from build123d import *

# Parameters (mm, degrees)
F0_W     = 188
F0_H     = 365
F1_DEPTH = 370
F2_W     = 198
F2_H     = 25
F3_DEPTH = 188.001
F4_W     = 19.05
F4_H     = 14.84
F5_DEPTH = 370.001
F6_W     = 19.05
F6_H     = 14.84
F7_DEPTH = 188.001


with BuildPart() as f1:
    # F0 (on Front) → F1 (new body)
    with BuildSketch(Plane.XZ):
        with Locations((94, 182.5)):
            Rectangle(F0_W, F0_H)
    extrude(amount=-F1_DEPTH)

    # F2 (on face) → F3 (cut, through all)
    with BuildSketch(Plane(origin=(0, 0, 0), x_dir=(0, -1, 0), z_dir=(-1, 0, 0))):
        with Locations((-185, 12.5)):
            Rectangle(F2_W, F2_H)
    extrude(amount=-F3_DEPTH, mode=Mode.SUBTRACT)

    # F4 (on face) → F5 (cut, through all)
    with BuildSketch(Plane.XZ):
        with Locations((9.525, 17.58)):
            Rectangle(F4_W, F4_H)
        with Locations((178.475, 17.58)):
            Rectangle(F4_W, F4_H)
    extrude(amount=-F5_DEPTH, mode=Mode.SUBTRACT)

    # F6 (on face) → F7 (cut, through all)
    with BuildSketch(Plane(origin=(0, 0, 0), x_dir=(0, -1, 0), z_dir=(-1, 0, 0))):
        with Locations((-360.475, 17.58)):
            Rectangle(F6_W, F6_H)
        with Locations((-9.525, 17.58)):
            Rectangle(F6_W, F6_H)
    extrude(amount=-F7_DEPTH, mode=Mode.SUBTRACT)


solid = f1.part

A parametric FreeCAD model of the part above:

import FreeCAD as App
import Part
import Sketcher
Q = App.Units.Quantity


def add_polygon(sketch, points):
    """Adds a closed chain of lines whose ends are joined by coincident constraints."""
    first, n = sketch.GeometryCount, len(points)
    for a, b in zip(points, points[1:] + points[:1]):
        sketch.addGeometry(Part.LineSegment(App.Vector(*a, 0), App.Vector(*b, 0)), False)
    for i in range(n):
        sketch.addConstraint(Sketcher.Constraint("Coincident", first + i, 2, first + (i + 1) % n, 1))

doc = App.newDocument("Part")
body = doc.addObject("PartDesign::Body", "Body")

sketch1 = body.newObject("Sketcher::SketchObject", "Sketch")
sketch1.AttachmentSupport = (doc.getObject("XZ_Plane"), [""])
sketch1.MapMode = "FlatFace"
add_polygon(sketch1, [(0, 365), (0, 0), (188, 0), (188, 365)])
sketch1.addConstraint(Sketcher.Constraint("Vertical", 0))
sketch1.addConstraint(Sketcher.Constraint("Horizontal", 1))
sketch1.addConstraint(Sketcher.Constraint("Vertical", 2))
sketch1.addConstraint(Sketcher.Constraint("Horizontal", 3))
sketch1.addConstraint(Sketcher.Constraint("Coincident", 0, 2, -1, 1))
sketch1.addConstraint(Sketcher.Constraint("DistanceX", 1, 1, 1, 2, Q("188 mm")))
sketch1.addConstraint(Sketcher.Constraint("DistanceY", 0, 2, 0, 1, Q("365 mm")))
pad1 = body.newObject("PartDesign::Pad", "Pad")
pad1.Profile = sketch1
pad1.Length = 370
pad1.Reversed = True

sketch2 = body.newObject("Sketcher::SketchObject", "Sketch001")
sketch2.AttachmentSupport = (doc.getObject("YZ_Plane"), [""])
sketch2.MapMode = "FlatFace"
add_polygon(sketch2, [(284, 25), (284, 0), (86, 0), (86, 25)])
sketch2.addConstraint(Sketcher.Constraint("Vertical", 0))
sketch2.addConstraint(Sketcher.Constraint("Horizontal", 1))
sketch2.addConstraint(Sketcher.Constraint("Vertical", 2))
sketch2.addConstraint(Sketcher.Constraint("Horizontal", 3))
sketch2.addConstraint(Sketcher.Constraint("PointOnObject", 0, 2, -1))
sketch2.addConstraint(Sketcher.Constraint("DistanceX", 1, 2, 1, 1, Q("198 mm")))
sketch2.addConstraint(Sketcher.Constraint("DistanceY", 0, 2, 0, 1, Q("25 mm")))
sketch2.addConstraint(Sketcher.Constraint("DistanceX", -1, 1, 0, 2, Q("284 mm")))
pocket1 = body.newObject("PartDesign::Pocket", "Pocket")
pocket1.Profile = sketch2
pocket1.Type = "ThroughAll"
pocket1.Reversed = True

sketch3 = body.newObject("Sketcher::SketchObject", "Sketch002")
sketch3.AttachmentSupport = (doc.getObject("XZ_Plane"), [""])
sketch3.MapMode = "FlatFace"
add_polygon(sketch3, [(0, 25), (0, 10), (19, 10), (19, 25)])
add_polygon(sketch3, [(169, 25), (169, 10), (188, 10), (188, 25)])
sketch3.addConstraint(Sketcher.Constraint("Vertical", 0))
sketch3.addConstraint(Sketcher.Constraint("Horizontal", 1))
sketch3.addConstraint(Sketcher.Constraint("Vertical", 2))
sketch3.addConstraint(Sketcher.Constraint("Horizontal", 3))
sketch3.addConstraint(Sketcher.Constraint("Vertical", 4))
sketch3.addConstraint(Sketcher.Constraint("Horizontal", 5))
sketch3.addConstraint(Sketcher.Constraint("Vertical", 6))
sketch3.addConstraint(Sketcher.Constraint("Horizontal", 7))
sketch3.addConstraint(Sketcher.Constraint("PointOnObject", 0, 2, -2))
sketch3.addConstraint(Sketcher.Constraint("Horizontal", 1, 2, 4, 2))
sketch3.addConstraint(Sketcher.Constraint("Horizontal", 3, 2, 6, 2))
sketch3.addConstraint(Sketcher.Constraint("Equal", 3, 5))
sketch3.addConstraint(Sketcher.Constraint("DistanceY", -1, 1, 2, 2, Q("25 mm")))
sketch3.addConstraint(Sketcher.Constraint("DistanceX", -1, 1, 5, 2, Q("188 mm")))
sketch3.addConstraint(Sketcher.Constraint("DistanceX", 1, 1, 1, 2, Q("19.05 mm")))
sketch3.addConstraint(Sketcher.Constraint("DistanceY", 0, 2, 0, 1, Q("14.84 mm")))
pocket2 = body.newObject("PartDesign::Pocket", "Pocket001")
pocket2.Profile = sketch3
pocket2.Type = "ThroughAll"

sketch4 = body.newObject("Sketcher::SketchObject", "Sketch003")
sketch4.AttachmentSupport = (doc.getObject("YZ_Plane"), [""])
sketch4.MapMode = "FlatFace"
add_polygon(sketch4, [(370, 25), (370, 10), (351, 10), (351, 25)])
add_polygon(sketch4, [(19, 25), (19, 10), (0, 10), (0, 25)])
sketch4.addConstraint(Sketcher.Constraint("Vertical", 0))
sketch4.addConstraint(Sketcher.Constraint("Horizontal", 1))
sketch4.addConstraint(Sketcher.Constraint("Vertical", 2))
sketch4.addConstraint(Sketcher.Constraint("Horizontal", 3))
sketch4.addConstraint(Sketcher.Constraint("Vertical", 4))
sketch4.addConstraint(Sketcher.Constraint("Horizontal", 5))
sketch4.addConstraint(Sketcher.Constraint("Vertical", 6))
sketch4.addConstraint(Sketcher.Constraint("Horizontal", 7))
sketch4.addConstraint(Sketcher.Constraint("PointOnObject", 5, 2, -2))
sketch4.addConstraint(Sketcher.Constraint("Horizontal", 1, 2, 4, 2))
sketch4.addConstraint(Sketcher.Constraint("Horizontal", 3, 2, 6, 2))
sketch4.addConstraint(Sketcher.Constraint("Equal", 3, 5))
sketch4.addConstraint(Sketcher.Constraint("DistanceX", -1, 1, 0, 2, Q("370 mm")))
sketch4.addConstraint(Sketcher.Constraint("DistanceY", -1, 1, 2, 2, Q("25 mm")))
sketch4.addConstraint(Sketcher.Constraint("DistanceX", 1, 2, 1, 1, Q("19.05 mm")))
sketch4.addConstraint(Sketcher.Constraint("DistanceY", 0, 2, 0, 1, Q("14.84 mm")))
pocket3 = body.newObject("PartDesign::Pocket", "Pocket002")
pocket3.Profile = sketch4
pocket3.Type = "ThroughAll"
pocket3.Reversed = True

doc.recompute()
